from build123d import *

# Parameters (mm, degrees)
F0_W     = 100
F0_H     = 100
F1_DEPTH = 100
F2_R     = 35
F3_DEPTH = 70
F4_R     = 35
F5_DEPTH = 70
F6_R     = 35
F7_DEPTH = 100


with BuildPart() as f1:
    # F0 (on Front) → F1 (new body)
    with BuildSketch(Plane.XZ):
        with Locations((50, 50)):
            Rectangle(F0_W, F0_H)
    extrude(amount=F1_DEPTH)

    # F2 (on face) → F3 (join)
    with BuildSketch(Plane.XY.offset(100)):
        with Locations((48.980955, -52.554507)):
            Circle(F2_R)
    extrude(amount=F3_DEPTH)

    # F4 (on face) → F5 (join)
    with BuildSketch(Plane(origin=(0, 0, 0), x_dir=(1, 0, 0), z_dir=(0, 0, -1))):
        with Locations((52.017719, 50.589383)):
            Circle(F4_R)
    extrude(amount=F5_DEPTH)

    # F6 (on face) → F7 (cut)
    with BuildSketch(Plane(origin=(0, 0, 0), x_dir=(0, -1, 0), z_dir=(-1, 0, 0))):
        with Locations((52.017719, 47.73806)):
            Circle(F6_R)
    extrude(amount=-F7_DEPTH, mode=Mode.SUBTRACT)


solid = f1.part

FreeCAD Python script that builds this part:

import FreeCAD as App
import Part
import Sketcher
from FreeCAD import Vector


def add_polygon(sketch, points):
    """Adds a closed chain of lines whose ends are joined by coincident constraints."""
    first, n = sketch.GeometryCount, len(points)
    for a, b in zip(points, points[1:] + points[:1]):
        sketch.addGeometry(Part.LineSegment(App.Vector(*a, 0), App.Vector(*b, 0)), False)
    for i in range(n):
        sketch.addConstraint(Sketcher.Constraint("Coincident", first + i, 2, first + (i + 1) % n, 1))

doc = App.newDocument("Part")
params = doc.addObject("Spreadsheet::Sheet", "Params")
for row, (alias, value) in enumerate([
    ("sketch1_width", "100 mm"),
    ("pad1_length", "100 mm"),
    ("sketch2_diameter", "70 mm"),
    ("pad2_length", "70 mm"),
    ("sketch3_diameter", "70 mm"),
    ("pad3_length", "70 mm"),
    ("sketch4_diameter", "70 mm"),
    ("pocket1_length", "100 mm"),
], start=1):
    params.set(f"A{row}", alias)
    params.set(f"B{row}", "=" + value)
    params.setAlias(f"B{row}", alias)

body = doc.addObject("PartDesign::Body", "Body")

# Sketch on XZ plane
sketch1 = body.newObject("Sketcher::SketchObject", "Sketch")
sketch1.AttachmentSupport = (doc.getObject("XZ_Plane"), [""])
sketch1.MapMode = "FlatFace"
add_polygon(sketch1, [(0, 100), (0, 0), (100, 0), (100, 100)])  # lines 0-3
sketch1.addConstraint([
    Sketcher.Constraint("Vertical", 0),
    Sketcher.Constraint("Horizontal", 1),
    Sketcher.Constraint("Vertical", 2),
    Sketcher.Constraint("Horizontal", 3),
    Sketcher.Constraint("Coincident", 0, 2, -1, 1),
    Sketcher.Constraint("Equal", 3, 0),
    Sketcher.Constraint("DistanceX", 1, 1, 1, 2, 100.0),
])
sketch1.setExpression("Constraints[10]", "Params.sketch1_width")
pad1 = body.newObject("PartDesign::Pad", "Pad")
pad1.Profile = sketch1
pad1.setExpression("Length", "Params.pad1_length")

# Sketch on XY plane
sketch2 = body.newObject("Sketcher::SketchObject", "Sketch001")
sketch2.AttachmentSupport = (doc.getObject("XY_Plane"), [""])
sketch2.MapMode = "FlatFace"
sketch2.AttachmentOffset = App.Placement(Vector(0, 0, 100), App.Rotation())
sketch2.addGeometry(Part.Circle(Vector(49, -53, 0), Vector(0, 0, 1), 35), False)
sketch2.addConstraint([
    Sketcher.Constraint("Diameter", 0, 70.0),
    Sketcher.Constraint("DistanceX", -1, 1, 0, 3, 48.980955),
    Sketcher.Constraint("DistanceY", 0, 3, -1, 1, 52.554507),
])
sketch2.setExpression("Constraints[0]", "Params.sketch2_diameter")
pad2 = body.newObject("PartDesign::Pad", "Pad001")
pad2.Profile = sketch2
pad2.setExpression("Length", "Params.pad2_length")

# Sketch on XY plane
sketch3 = body.newObject("Sketcher::SketchObject", "Sketch002")
sketch3.AttachmentSupport = (doc.getObject("XY_Plane"), [""])
sketch3.MapMode = "FlatFace"
sketch3.addGeometry(Part.Circle(Vector(52, -51, 0), Vector(0, 0, 1), 35), False)
sketch3.addConstraint([
    Sketcher.Constraint("Diameter", 0, 70.0),
    Sketcher.Constraint("DistanceX", -1, 1, 0, 3, 52.017719),
    Sketcher.Constraint("DistanceY", 0, 3, -1, 1, 50.589383),
])
sketch3.setExpression("Constraints[0]", "Params.sketch3_diameter")
pad3 = body.newObject("PartDesign::Pad", "Pad002")
pad3.Profile = sketch3
pad3.setExpression("Length", "Params.pad3_length")
pad3.Reversed = True

# Sketch on YZ plane
sketch4 = body.newObject("Sketcher::SketchObject", "Sketch003")
sketch4.AttachmentSupport = (doc.getObject("YZ_Plane"), [""])
sketch4.MapMode = "FlatFace"
sketch4.addGeometry(Part.Circle(Vector(-52, 48, 0), Vector(0, 0, 1), 35), False)
sketch4.addConstraint([
    Sketcher.Constraint("Diameter", 0, 70.0),
    Sketcher.Constraint("DistanceX", 0, 3, -1, 1, 52.017719),
    Sketcher.Constraint("DistanceY", -1, 1, 0, 3, 47.73806),
])
sketch4.setExpression("Constraints[0]", "Params.sketch4_diameter")
pocket1 = body.newObject("PartDesign::Pocket", "Pocket")
pocket1.Profile = sketch4
pocket1.setExpression("Length", "Params.pocket1_length")
pocket1.Reversed = True

doc.recompute()
